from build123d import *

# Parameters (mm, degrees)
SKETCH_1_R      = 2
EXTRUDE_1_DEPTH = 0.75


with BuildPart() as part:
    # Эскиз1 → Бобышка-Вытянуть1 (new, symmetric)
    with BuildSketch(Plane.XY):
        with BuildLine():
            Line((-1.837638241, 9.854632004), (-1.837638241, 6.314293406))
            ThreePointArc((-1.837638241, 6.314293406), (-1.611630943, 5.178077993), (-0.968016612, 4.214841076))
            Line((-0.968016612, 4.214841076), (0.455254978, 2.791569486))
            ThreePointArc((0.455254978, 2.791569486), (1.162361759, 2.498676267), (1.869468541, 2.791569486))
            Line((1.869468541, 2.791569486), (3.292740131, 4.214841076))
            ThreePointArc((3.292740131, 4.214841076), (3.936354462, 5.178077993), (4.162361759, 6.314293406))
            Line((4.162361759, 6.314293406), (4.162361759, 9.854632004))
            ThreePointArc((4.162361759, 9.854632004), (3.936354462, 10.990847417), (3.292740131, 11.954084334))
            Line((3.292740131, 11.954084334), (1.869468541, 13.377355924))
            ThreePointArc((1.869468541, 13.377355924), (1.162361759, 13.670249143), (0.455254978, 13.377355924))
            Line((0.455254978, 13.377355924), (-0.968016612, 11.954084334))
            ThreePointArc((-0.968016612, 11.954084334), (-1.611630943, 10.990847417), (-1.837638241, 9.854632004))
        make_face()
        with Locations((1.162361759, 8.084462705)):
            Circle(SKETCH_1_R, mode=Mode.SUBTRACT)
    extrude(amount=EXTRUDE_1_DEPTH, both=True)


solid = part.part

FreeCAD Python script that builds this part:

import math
import FreeCAD as App
import Part
import Sketcher

V = App.Vector

doc = App.newDocument("Part")
body = doc.addObject("PartDesign::Body", "Body")

# Sketch on XY plane
sketch1 = doc.addObject("Sketcher::SketchObject", "Sketch")
body.addObject(sketch1)
sketch1.AttachmentSupport = (doc.XY_Plane, [""])
sketch1.MapMode = "FlatFace"
sketch1.addGeometry(Part.LineSegment(V(-1.8, 9.9, 0), V(-1.8, 6.3, 0)), False)
sketch1.addGeometry(Part.ArcOfCircle(Part.Circle(V(1.1, 6.3, 0), V(0, 0, 1), 3), math.radians(-180), math.radians(-135)), False)
sketch1.addGeometry(Part.LineSegment(V(-1, 4.2, 0), V(0.5, 2.8, 0)), False)
sketch1.addGeometry(Part.ArcOfCircle(Part.Circle(V(1.2, 3.5, 0), V(0, 0, 1), 1), math.radians(-135), math.radians(-45)), False)
sketch1.addGeometry(Part.LineSegment(V(1.9, 2.8, 0), V(3.3, 4.2, 0)), False)
sketch1.addGeometry(Part.ArcOfCircle(Part.Circle(V(1.2, 6.3, 0), V(0, 0, 1), 3), math.radians(-45), math.radians(0)), False)
sketch1.addGeometry(Part.LineSegment(V(4.2, 6.3, 0), V(4.2, 9.9, 0)), False)
sketch1.addGeometry(Part.ArcOfCircle(Part.Circle(V(1.2, 9.9, 0), V(0, 0, 1), 3), math.radians(0), math.radians(45)), False)
sketch1.addGeometry(Part.LineSegment(V(3.3, 12, 0), V(1.9, 13.4, 0)), False)
sketch1.addGeometry(Part.ArcOfCircle(Part.Circle(V(1.2, 12.7, 0), V(0, 0, 1), 1), math.radians(45), math.radians(135)), False)
sketch1.addGeometry(Part.LineSegment(V(0.5, 13.4, 0), V(-1, 12, 0)), False)
sketch1.addGeometry(Part.ArcOfCircle(Part.Circle(V(1.1, 9.9, 0), V(0, 0, 1), 3), math.radians(135), math.radians(180)), False)
sketch1.addGeometry(Part.Circle(V(1.2, 8.1, 0), V(0, 0, 1), 2), False)
sketch1.addConstraint(Sketcher.Constraint("Tangent", 0, 2, 1, 1))
sketch1.addConstraint(Sketcher.Constraint("Tangent", 1, 2, 2, 1))
sketch1.addConstraint(Sketcher.Constraint("Tangent", 2, 2, 3, 1))
sketch1.addConstraint(Sketcher.Constraint("Tangent", 3, 2, 4, 1))
sketch1.addConstraint(Sketcher.Constraint("Tangent", 4, 2, 5, 1))
sketch1.addConstraint(Sketcher.Constraint("Tangent", 5, 2, 6, 1))
sketch1.addConstraint(Sketcher.Constraint("Tangent", 6, 2, 7, 1))
sketch1.addConstraint(Sketcher.Constraint("Tangent", 7, 2, 8, 1))
sketch1.addConstraint(Sketcher.Constraint("Tangent", 8, 2, 9, 1))
sketch1.addConstraint(Sketcher.Constraint("Tangent", 9, 2, 10, 1))
sketch1.addConstraint(Sketcher.Constraint("Tangent", 10, 2, 11, 1))
sketch1.addConstraint(Sketcher.Constraint("Tangent", 11, 2, 0, 1))
sketch1.addConstraint(Sketcher.Constraint("Vertical", 0))
sketch1.addConstraint(Sketcher.Constraint("Vertical", 6))
sketch1.addConstraint(Sketcher.Constraint("Equal", 1, 5))
sketch1.addConstraint(Sketcher.Constraint("Equal", 5, 7))
sketch1.addConstraint(Sketcher.Constraint("Equal", 3, 9))
sketch1.addConstraint(Sketcher.Constraint("Equal", 7, 11))
sketch1.addConstraint(Sketcher.Constraint("Perpendicular", 2, 4))
sketch1.addConstraint(Sketcher.Constraint("Perpendicular", 4, 8))
sketch1.addConstraint(Sketcher.Constraint("Perpendicular", 8, 10))
sketch1.addConstraint(Sketcher.Constraint("Horizontal", 1, 3, 5, 3))
sketch1.addConstraint(Sketcher.Constraint("Horizontal", 7, 3, 11, 3))
sketch1.addConstraint(Sketcher.Constraint("Horizontal", 2, 2, 3, 2))
sketch1.addConstraint(Sketcher.Constraint("Vertical", 9, 3, 12, 3))
sketch1.addConstraint(Sketcher.Constraint("Diameter", 12, 4.0))
sketch1.addConstraint(Sketcher.Constraint("Radius", 3, 1.0))
sketch1.addConstraint(Sketcher.Constraint("DistanceX", 0, 2, 12, 3, 3.0))
sketch1.addConstraint(Sketcher.Constraint("Radius", 1, 2.969074))
sketch1.addConstraint(Sketcher.Constraint("DistanceY", 0, 2, 0, 1, 3.540339))
sketch1.addConstraint(Sketcher.Constraint("DistanceX", -1, 1, 3, 3, 1.162362))
sketch1.addConstraint(Sketcher.Constraint("DistanceY", -1, 1, 9, 3, 12.670249))
sketch1.addConstraint(Sketcher.Constraint("DistanceY", 1, 3, 12, 3, 1.770169))
pad1 = doc.addObject("PartDesign::Pad", "Pad")
body.addObject(pad1)
pad1.Profile = sketch1
pad1.Length = 1.5
pad1.Midplane = True

doc.recompute()
